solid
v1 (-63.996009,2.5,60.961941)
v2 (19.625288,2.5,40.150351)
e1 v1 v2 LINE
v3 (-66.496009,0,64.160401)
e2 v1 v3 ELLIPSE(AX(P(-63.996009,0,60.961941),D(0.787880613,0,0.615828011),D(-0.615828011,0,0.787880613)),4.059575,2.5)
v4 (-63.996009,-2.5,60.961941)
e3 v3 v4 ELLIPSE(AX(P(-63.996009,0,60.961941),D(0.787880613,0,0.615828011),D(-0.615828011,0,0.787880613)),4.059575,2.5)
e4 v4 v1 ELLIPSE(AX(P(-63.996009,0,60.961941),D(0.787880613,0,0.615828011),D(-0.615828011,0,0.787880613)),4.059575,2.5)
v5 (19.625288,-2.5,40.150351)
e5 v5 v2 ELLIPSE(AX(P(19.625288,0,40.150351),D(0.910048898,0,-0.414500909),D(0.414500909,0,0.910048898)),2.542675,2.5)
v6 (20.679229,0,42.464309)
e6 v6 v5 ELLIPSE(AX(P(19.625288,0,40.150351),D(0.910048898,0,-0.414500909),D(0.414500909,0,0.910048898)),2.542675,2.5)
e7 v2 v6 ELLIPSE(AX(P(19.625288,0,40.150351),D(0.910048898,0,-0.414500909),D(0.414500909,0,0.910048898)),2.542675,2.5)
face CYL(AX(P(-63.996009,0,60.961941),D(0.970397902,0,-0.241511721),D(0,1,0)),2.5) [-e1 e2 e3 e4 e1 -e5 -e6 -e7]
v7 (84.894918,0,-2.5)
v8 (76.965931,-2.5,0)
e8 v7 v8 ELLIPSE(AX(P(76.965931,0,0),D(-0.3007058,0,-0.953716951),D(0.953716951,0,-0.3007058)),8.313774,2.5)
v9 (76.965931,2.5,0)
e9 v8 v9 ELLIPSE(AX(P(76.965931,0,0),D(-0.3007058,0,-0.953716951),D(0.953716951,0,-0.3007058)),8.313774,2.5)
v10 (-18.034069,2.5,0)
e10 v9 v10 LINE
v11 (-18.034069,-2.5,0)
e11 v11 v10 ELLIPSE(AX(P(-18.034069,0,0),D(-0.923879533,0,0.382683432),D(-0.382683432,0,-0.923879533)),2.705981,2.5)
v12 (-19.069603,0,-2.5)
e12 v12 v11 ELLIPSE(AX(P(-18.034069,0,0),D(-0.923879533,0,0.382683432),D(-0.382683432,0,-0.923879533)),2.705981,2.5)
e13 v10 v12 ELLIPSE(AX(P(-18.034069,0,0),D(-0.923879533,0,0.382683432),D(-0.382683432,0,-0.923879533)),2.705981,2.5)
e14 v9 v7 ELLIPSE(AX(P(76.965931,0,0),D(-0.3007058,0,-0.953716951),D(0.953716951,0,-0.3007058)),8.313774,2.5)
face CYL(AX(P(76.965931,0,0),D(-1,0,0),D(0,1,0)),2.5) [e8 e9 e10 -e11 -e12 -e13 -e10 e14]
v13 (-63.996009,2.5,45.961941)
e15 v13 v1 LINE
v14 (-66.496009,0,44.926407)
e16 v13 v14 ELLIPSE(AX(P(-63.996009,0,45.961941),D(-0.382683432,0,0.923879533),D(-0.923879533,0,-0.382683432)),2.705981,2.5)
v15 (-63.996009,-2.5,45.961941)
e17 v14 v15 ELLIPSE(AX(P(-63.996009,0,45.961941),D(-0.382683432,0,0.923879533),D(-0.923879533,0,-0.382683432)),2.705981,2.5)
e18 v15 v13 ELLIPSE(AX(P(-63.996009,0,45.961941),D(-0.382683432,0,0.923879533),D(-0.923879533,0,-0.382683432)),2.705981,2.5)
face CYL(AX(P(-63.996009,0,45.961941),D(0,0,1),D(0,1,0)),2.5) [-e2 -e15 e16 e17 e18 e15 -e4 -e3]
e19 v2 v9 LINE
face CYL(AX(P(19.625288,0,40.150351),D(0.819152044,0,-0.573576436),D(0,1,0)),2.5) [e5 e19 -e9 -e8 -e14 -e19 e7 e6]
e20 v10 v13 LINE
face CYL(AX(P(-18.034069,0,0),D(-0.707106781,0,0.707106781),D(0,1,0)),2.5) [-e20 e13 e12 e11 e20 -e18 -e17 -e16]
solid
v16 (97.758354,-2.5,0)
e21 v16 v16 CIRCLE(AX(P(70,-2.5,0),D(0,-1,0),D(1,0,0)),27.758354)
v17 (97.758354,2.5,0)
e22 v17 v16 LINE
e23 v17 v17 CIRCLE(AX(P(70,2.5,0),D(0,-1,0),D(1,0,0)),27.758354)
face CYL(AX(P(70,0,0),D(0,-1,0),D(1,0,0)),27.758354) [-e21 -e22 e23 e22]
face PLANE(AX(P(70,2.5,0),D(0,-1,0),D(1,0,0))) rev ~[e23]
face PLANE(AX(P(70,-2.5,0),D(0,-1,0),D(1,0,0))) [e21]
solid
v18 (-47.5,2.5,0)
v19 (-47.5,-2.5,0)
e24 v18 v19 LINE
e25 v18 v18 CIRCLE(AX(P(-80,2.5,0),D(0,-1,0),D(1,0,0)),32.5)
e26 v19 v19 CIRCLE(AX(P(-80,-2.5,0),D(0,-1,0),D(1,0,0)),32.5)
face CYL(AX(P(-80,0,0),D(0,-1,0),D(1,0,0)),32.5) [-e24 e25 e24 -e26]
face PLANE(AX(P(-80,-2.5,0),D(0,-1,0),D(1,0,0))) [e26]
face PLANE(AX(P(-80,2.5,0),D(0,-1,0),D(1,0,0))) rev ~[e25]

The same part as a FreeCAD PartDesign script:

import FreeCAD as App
import Part
import Sketcher
from FreeCAD import Vector
Q = App.Units.Quantity

doc = App.newDocument("Part")
body = doc.addObject("PartDesign::Body", "Body")

# Sketch on XZ plane
sketch1 = body.newObject("Sketcher::SketchObject", "Sketch")
sketch1.AttachmentSupport = (doc.getObject("XZ_Plane"), [""])
sketch1.MapMode = "FlatFace"
sketch1.addGeometry(Part.Circle(Vector(70, 0, 0), Vector(0, 0, 1), 27.758354), False)
sketch1.addConstraint(Sketcher.Constraint("PointOnObject", 0, 3, -1))
sketch1.addConstraint(Sketcher.Constraint("DistanceX", -1, 1, 0, 3, 70.0))
sketch1.addConstraint(Sketcher.Constraint("Diameter", 0, 55.516708))
pad1 = body.newObject("PartDesign::Pad", "Pad")
pad1.Profile = sketch1
pad1.Length = 5
pad1.Midplane = True
body2 = doc.addObject("PartDesign::Body", "Body001")

# Sketch on XZ plane
sketch2 = body2.newObject("Sketcher::SketchObject", "Sketch001")
sketch2.AttachmentSupport = (doc.getObject("XZ_Plane001"), [""])
sketch2.MapMode = "FlatFace"
sketch2.addGeometry(Part.Circle(Vector(-80, 0, 0), Vector(0, 0, 1), 32.5), False)
sketch2.addConstraint(Sketcher.Constraint("PointOnObject", 0, 3, -1))
sketch2.addConstraint(Sketcher.Constraint("Diameter", 0, 65.0))
sketch2.addConstraint(Sketcher.Constraint("DistanceX", 0, 3, -1, 1, 80.0))
pad2 = body2.newObject("PartDesign::Pad", "Pad001")
pad2.Profile = sketch2
pad2.Length = 5
pad2.Midplane = True
body3 = doc.addObject("PartDesign::Body", "Body002")

# Sketch on YZ plane
sketch3 = body3.newObject("Sketcher::SketchObject", "Sketch002")
sketch3.AttachmentSupport = (doc.getObject("YZ_Plane002"), [""])
sketch3.MapMode = "FlatFace"
sketch3.addGeometry(Part.Circle(Vector(0, 0, 0), Vector(0, 0, 1), 2.5), False)
sketch3.addConstraint(Sketcher.Constraint("Coincident", 0, 3, -1, 1))
sketch3.addConstraint(Sketcher.Constraint("Diameter", 0, 5.0))

# Sketch on XZ plane
sketch4 = body3.newObject("Sketcher::SketchObject", "Sketch003")
sketch4.AttachmentSupport = (doc.getObject("XZ_Plane002"), [""])
sketch4.MapMode = "FlatFace"
sketch4.addGeometry(Part.LineSegment(Vector(76.965931, 0, 0), Vector(-18.034069, 0, 0)), False)
sketch4.addGeometry(Part.LineSegment(Vector(-18.034069, 0, 0), Vector(-63.996009, 45.961941, 0)), False)
sketch4.addGeometry(Part.LineSegment(Vector(-63.996009, 45.961941, 0), Vector(-63.996009, 60.961941, 0)), False)
sketch4.addGeometry(Part.LineSegment(Vector(-63.996009, 60.961941, 0), Vector(19.625288, 40.150351, 0)), False)
sketch4.addGeometry(Part.LineSegment(Vector(19.625288, 40.150351, 0), Vector(76.965931, 0, 0)), False)
sketch4.addConstraint(Sketcher.Constraint("Coincident", 0, 2, 1, 1))
sketch4.addConstraint(Sketcher.Constraint("Coincident", 1, 2, 2, 1))
sketch4.addConstraint(Sketcher.Constraint("Coincident", 2, 2, 3, 1))
sketch4.addConstraint(Sketcher.Constraint("Coincident", 3, 2, 4, 1))
sketch4.addConstraint(Sketcher.Constraint("Coincident", 4, 2, 0, 1))
sketch4.addConstraint(Sketcher.Constraint("Horizontal", 0))
sketch4.addConstraint(Sketcher.Constraint("Vertical", 2))
sketch4.addConstraint(Sketcher.Constraint("PointOnObject", 0, 2, -1))
sketch4.addConstraint(Sketcher.Constraint("DistanceX", 0, 2, 0, 1, 95.0))
sketch4.addConstraint(Sketcher.Constraint("DistanceY", 2, 1, 2, 2, 15.0))
sketch4.addConstraint(Sketcher.Constraint("Angle", 1, Q("135 deg")))
sketch4.addConstraint(Sketcher.Constraint("Angle", 4, Q("-35 deg")))
sketch4.addConstraint(Sketcher.Constraint("Distance", 1, 65.0))
sketch4.addConstraint(Sketcher.Constraint("Distance", 4, 70.0))
sketch4.addConstraint(Sketcher.Constraint("DistanceX", 0, 2, -1, 1, 18.034069))
doc.recompute()

additivepipe = body3.newObject("PartDesign::AdditivePipe", "AdditivePipe")
additivepipe.Profile = sketch3
additivepipe.Spine = (sketch4, ["Edge1", "Edge2", "Edge3", "Edge4", "Edge5"])
additivepipe.Transition = "Right corner"

doc.recompute()
